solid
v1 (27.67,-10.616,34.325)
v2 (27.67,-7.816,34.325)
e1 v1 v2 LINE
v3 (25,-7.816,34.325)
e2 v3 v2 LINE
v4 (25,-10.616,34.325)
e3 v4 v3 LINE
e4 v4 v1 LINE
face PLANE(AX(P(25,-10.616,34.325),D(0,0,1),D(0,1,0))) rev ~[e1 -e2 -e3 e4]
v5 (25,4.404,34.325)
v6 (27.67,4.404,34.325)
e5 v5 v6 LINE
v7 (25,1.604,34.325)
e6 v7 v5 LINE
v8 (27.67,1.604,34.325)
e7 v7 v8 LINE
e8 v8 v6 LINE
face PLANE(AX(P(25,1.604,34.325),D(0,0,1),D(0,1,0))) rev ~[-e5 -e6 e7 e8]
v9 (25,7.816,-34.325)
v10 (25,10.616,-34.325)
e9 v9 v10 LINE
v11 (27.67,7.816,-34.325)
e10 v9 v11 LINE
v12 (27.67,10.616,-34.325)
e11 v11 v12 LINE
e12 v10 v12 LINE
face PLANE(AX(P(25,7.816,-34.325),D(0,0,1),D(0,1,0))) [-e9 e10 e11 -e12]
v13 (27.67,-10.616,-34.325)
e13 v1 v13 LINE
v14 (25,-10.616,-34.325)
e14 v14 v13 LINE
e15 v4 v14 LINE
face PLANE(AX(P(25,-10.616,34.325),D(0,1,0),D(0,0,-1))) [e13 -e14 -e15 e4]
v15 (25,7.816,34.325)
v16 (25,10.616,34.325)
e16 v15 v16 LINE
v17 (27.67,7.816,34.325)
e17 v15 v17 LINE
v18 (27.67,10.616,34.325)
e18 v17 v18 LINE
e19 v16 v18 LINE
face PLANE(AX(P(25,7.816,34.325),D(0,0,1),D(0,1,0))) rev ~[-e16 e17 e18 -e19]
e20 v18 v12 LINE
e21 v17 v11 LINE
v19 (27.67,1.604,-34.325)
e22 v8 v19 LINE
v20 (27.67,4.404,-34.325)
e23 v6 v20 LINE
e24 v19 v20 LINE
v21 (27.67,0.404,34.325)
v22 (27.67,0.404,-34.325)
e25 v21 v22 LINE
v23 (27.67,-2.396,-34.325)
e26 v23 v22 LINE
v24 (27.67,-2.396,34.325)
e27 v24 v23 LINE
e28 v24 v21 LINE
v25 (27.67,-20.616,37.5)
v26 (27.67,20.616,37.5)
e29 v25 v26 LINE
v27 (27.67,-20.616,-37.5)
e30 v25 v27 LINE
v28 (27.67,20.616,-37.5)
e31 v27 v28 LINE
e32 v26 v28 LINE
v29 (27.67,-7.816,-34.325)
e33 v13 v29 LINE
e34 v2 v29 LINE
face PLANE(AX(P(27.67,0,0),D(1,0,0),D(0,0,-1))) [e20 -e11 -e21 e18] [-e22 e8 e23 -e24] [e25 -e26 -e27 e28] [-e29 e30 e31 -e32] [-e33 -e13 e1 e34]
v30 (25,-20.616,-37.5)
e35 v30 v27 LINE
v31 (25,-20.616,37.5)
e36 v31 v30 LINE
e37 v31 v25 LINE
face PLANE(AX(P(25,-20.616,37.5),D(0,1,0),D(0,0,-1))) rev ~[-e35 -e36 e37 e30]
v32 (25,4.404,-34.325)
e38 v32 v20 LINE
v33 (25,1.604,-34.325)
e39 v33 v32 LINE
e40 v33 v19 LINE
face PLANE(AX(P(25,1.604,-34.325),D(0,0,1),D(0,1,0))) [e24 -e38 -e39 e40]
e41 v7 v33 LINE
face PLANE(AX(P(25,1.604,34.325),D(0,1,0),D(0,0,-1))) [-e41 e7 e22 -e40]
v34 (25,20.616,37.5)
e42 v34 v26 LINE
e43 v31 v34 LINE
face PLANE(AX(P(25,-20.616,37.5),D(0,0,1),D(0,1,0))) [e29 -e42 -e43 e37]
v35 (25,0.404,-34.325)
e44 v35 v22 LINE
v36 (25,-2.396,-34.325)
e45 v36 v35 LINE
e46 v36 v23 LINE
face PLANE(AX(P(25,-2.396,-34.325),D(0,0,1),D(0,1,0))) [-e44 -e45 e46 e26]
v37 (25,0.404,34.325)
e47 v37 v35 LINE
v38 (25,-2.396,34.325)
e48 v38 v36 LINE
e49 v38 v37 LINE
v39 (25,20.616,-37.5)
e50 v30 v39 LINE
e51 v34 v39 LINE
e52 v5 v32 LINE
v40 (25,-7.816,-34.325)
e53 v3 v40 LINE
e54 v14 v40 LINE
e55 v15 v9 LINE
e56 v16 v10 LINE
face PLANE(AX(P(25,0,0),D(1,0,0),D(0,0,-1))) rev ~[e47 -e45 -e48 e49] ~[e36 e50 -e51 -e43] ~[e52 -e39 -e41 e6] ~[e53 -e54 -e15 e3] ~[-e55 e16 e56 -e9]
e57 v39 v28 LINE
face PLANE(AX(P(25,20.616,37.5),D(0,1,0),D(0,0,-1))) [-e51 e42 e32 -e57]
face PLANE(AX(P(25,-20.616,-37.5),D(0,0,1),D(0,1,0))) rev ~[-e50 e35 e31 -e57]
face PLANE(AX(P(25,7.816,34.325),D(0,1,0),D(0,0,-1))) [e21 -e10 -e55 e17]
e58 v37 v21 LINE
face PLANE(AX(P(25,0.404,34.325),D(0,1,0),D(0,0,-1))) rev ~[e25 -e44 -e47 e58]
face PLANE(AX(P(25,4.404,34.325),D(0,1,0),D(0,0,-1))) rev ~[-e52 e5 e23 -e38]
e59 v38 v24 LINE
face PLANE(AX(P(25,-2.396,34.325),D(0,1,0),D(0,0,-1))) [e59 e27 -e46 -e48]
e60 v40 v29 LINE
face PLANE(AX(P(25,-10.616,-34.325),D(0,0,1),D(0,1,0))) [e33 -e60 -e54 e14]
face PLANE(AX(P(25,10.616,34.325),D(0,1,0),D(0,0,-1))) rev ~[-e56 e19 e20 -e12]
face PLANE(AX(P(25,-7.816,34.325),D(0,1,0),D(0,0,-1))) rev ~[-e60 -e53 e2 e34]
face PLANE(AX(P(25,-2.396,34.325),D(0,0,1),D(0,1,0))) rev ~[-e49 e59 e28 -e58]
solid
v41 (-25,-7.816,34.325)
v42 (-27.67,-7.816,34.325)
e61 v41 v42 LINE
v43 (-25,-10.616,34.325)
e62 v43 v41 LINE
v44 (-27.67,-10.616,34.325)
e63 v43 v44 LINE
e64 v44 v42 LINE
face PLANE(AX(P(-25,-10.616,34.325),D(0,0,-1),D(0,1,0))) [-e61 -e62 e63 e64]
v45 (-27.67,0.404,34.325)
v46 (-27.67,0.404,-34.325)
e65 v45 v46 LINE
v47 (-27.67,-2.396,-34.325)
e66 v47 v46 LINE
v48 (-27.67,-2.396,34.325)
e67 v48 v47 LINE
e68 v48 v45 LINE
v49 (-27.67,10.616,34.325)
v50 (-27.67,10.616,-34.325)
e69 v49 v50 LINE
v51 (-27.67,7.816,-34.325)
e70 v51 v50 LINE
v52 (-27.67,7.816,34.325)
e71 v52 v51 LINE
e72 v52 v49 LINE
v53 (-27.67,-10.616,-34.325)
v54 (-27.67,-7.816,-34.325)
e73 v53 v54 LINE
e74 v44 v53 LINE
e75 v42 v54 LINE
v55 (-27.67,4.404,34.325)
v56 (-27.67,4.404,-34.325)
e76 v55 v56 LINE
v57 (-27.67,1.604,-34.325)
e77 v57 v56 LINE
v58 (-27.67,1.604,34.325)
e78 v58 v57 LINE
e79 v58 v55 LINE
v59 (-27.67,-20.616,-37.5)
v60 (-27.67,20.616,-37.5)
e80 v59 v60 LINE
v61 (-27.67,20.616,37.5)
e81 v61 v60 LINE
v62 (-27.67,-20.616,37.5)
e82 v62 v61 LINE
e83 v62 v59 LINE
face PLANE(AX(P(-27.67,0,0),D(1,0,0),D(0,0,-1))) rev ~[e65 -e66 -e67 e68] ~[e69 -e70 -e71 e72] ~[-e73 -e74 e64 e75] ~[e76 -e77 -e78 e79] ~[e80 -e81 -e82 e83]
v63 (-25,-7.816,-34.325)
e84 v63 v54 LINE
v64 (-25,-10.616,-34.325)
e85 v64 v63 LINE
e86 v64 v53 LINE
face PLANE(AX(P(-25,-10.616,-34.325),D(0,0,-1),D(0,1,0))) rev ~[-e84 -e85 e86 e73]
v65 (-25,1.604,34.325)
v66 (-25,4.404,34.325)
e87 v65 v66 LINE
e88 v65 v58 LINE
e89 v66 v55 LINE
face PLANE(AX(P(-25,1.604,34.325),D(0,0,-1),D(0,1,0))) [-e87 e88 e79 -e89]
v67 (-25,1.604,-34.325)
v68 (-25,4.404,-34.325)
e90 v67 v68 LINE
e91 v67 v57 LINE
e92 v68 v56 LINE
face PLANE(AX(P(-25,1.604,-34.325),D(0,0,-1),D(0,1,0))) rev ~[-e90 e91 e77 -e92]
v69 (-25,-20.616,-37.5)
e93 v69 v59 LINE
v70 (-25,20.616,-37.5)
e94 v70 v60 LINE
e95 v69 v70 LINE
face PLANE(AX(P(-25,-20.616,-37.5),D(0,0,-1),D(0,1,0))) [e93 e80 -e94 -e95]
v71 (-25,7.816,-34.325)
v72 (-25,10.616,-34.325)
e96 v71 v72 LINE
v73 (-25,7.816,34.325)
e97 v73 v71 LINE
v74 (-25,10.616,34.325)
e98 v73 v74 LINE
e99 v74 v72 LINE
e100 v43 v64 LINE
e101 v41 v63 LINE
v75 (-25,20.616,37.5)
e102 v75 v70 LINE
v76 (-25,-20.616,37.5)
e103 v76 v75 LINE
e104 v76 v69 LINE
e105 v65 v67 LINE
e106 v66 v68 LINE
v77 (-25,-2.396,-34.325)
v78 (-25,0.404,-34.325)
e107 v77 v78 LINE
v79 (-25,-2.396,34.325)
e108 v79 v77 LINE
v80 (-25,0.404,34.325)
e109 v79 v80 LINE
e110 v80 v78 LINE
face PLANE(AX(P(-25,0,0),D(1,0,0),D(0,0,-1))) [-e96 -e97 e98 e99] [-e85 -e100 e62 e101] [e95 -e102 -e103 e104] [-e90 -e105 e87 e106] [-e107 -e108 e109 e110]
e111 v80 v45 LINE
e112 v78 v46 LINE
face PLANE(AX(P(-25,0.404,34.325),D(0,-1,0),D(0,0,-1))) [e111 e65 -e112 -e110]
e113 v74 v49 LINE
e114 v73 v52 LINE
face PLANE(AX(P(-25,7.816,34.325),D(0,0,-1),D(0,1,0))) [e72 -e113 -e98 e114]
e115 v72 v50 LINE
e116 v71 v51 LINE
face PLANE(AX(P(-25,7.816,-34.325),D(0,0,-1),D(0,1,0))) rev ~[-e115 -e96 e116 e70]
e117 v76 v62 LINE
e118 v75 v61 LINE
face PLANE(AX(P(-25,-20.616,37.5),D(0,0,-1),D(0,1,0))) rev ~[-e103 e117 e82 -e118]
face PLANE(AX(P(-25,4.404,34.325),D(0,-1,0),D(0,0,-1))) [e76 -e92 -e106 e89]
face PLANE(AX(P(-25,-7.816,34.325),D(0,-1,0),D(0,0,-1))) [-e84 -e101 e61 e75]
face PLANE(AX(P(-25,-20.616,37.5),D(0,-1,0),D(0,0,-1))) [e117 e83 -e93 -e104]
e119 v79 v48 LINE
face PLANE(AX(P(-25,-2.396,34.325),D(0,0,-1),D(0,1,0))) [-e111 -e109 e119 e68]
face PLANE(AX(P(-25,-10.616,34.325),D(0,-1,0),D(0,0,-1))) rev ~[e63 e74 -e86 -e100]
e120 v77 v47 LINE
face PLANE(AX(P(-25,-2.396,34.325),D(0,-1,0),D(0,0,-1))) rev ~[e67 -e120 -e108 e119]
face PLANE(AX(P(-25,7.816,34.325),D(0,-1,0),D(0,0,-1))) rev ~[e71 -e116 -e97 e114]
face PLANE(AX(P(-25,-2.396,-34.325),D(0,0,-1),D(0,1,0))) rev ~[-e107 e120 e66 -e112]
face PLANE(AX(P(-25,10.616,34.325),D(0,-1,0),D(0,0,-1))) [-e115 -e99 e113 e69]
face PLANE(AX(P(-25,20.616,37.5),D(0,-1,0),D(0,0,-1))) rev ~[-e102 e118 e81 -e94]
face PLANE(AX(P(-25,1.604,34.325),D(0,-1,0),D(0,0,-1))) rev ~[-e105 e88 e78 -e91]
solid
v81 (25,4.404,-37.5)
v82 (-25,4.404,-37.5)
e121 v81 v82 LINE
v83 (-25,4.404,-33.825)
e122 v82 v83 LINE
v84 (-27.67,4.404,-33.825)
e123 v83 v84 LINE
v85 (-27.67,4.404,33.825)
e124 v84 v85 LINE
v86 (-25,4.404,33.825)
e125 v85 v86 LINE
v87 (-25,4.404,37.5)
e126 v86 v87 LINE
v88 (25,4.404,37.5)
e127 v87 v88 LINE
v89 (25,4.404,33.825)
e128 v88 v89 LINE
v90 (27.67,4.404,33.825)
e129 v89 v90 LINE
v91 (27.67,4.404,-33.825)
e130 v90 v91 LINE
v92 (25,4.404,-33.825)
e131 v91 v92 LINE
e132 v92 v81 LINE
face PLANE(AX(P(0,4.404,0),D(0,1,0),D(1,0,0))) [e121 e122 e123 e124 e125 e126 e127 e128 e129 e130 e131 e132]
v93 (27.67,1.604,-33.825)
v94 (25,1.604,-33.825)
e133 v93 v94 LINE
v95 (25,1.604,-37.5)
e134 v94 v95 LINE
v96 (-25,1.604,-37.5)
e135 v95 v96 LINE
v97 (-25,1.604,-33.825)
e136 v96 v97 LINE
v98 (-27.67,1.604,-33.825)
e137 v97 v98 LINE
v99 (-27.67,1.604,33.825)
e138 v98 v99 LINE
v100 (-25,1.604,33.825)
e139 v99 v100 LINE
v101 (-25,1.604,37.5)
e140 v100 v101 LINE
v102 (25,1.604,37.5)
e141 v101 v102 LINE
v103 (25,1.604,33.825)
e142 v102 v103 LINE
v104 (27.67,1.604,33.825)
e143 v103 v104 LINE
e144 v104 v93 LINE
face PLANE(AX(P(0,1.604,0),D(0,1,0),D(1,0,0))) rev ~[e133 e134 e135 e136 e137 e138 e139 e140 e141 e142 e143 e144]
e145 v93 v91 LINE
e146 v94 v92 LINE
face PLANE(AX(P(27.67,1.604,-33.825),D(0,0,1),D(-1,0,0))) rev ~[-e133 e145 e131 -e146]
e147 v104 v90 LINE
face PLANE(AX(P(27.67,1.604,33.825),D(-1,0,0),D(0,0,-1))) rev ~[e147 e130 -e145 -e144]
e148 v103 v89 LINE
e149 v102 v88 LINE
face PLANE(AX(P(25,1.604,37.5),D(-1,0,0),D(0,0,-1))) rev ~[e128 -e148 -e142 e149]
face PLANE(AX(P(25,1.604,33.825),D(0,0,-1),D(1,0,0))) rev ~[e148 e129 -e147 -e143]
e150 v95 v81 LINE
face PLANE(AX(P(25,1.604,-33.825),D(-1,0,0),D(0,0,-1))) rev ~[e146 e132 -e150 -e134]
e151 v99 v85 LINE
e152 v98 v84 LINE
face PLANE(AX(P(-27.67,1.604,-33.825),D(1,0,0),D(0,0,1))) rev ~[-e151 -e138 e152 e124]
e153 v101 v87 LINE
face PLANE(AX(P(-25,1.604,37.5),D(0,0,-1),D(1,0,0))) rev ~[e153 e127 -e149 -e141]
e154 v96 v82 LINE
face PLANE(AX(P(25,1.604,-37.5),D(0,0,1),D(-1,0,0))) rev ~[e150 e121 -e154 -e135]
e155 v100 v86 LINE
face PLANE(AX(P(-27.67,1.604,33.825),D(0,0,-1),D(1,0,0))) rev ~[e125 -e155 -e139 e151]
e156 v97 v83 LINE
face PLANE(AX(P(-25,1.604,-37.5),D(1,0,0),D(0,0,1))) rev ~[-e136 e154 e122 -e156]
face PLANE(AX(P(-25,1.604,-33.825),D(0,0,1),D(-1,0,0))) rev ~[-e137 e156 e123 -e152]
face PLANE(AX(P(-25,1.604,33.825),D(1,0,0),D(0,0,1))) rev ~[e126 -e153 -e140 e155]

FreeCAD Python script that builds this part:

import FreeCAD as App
import Part
import Sketcher

V = App.Vector


def add_polygon(sketch, points):
    """Adds a closed chain of lines whose ends are joined by coincident constraints."""
    first, n = sketch.GeometryCount, len(points)
    for a, b in zip(points, points[1:] + points[:1]):
        sketch.addGeometry(Part.LineSegment(App.Vector(*a, 0), App.Vector(*b, 0)), False)
    for i in range(n):
        sketch.addConstraint(Sketcher.Constraint("Coincident", first + i, 2, first + (i + 1) % n, 1))

doc = App.newDocument("Part")
body = doc.addObject("PartDesign::Body", "Body")

# Sketch on YZ plane
sketch1 = body.newObject("Sketcher::SketchObject", "Sketch")
sketch1.AttachmentSupport = (doc.getObject("YZ_Plane"), [""])
sketch1.MapMode = "FlatFace"
sketch1.AttachmentOffset = App.Placement(V(0, 0, 25), App.Rotation())
add_polygon(sketch1, [(20.6, 37.5), (-20.6, 37.5), (-20.6, -37.5), (20.6, -37.5)])  # lines 0-3
add_polygon(sketch1, [(-10.6, -34.3), (-10.6, 34.3), (-7.8, 34.3), (-7.8, -34.3)])  # lines 4-7
add_polygon(sketch1, [(-2.4, -34.3), (-2.4, 34.3), (0.4, 34.3), (0.4, -34.3)])  # lines 8-11
add_polygon(sketch1, [(1.6, -34.3), (1.6, 34.3), (4.4, 34.3), (4.4, -34.3)])  # lines 12-15
add_polygon(sketch1, [(7.8, -34.3), (7.8, 34.3), (10.6, 34.3), (10.6, -34.3)])  # lines 16-19
sketch1.addConstraint(Sketcher.Constraint("Horizontal", 0))
sketch1.addConstraint(Sketcher.Constraint("Vertical", 1))
sketch1.addConstraint(Sketcher.Constraint("Horizontal", 2))
sketch1.addConstraint(Sketcher.Constraint("Vertical", 3))
sketch1.addConstraint(Sketcher.Constraint("Vertical", 4))
sketch1.addConstraint(Sketcher.Constraint("Horizontal", 5))
sketch1.addConstraint(Sketcher.Constraint("Vertical", 6))
sketch1.addConstraint(Sketcher.Constraint("Horizontal", 7))
sketch1.addConstraint(Sketcher.Constraint("Vertical", 8))
sketch1.addConstraint(Sketcher.Constraint("Horizontal", 9))
sketch1.addConstraint(Sketcher.Constraint("Vertical", 10))
sketch1.addConstraint(Sketcher.Constraint("Horizontal", 11))
sketch1.addConstraint(Sketcher.Constraint("Vertical", 12))
sketch1.addConstraint(Sketcher.Constraint("Horizontal", 13))
sketch1.addConstraint(Sketcher.Constraint("Vertical", 14))
sketch1.addConstraint(Sketcher.Constraint("Horizontal", 15))
sketch1.addConstraint(Sketcher.Constraint("Vertical", 16))
sketch1.addConstraint(Sketcher.Constraint("Horizontal", 17))
sketch1.addConstraint(Sketcher.Constraint("Vertical", 18))
sketch1.addConstraint(Sketcher.Constraint("Horizontal", 19))
sketch1.addConstraint(Sketcher.Constraint("Symmetric", 0, 2, 2, 2, -1, 1))
sketch1.addConstraint(Sketcher.Constraint("Symmetric", 6, 2, 16, 2, -1, 1))
sketch1.addConstraint(Sketcher.Constraint("Symmetric", 4, 2, 18, 2, -1, 1))
sketch1.addConstraint(Sketcher.Constraint("Horizontal", 5, 2, 8, 2))
sketch1.addConstraint(Sketcher.Constraint("Horizontal", 7, 2, 10, 2))
sketch1.addConstraint(Sketcher.Constraint("Horizontal", 9, 2, 12, 2))
sketch1.addConstraint(Sketcher.Constraint("Horizontal", 11, 2, 14, 2))
sketch1.addConstraint(Sketcher.Constraint("Horizontal", 13, 2, 16, 2))
sketch1.addConstraint(Sketcher.Constraint("Equal", 7, 9))
sketch1.addConstraint(Sketcher.Constraint("Equal", 11, 13))
sketch1.addConstraint(Sketcher.Constraint("DistanceY", 1, 2, 1, 1, 75.0))
sketch1.addConstraint(Sketcher.Constraint("DistanceX", 5, 1, 5, 2, 2.8))
sketch1.addConstraint(Sketcher.Constraint("DistanceX", 0, 2, 4, 2, 10.0))
sketch1.addConstraint(Sketcher.Constraint("DistanceX", 8, 2, 12, 2, 4.0))
sketch1.addConstraint(Sketcher.Constraint("DistanceY", 4, 1, 4, 2, 68.65))
sketch1.addConstraint(Sketcher.Constraint("DistanceX", 0, 2, 0, 1, 41.232))
sketch1.addConstraint(Sketcher.Constraint("DistanceX", 5, 2, 8, 2, 5.42))
pad1 = body.newObject("PartDesign::Pad", "Pad")
pad1.Profile = sketch1
pad1.Length = 2.67
body2 = doc.addObject("PartDesign::Body", "Body001")

# Sketch on YZ plane
sketch2 = body2.newObject("Sketcher::SketchObject", "Sketch001")
sketch2.AttachmentSupport = (doc.getObject("YZ_Plane001"), [""])
sketch2.MapMode = "FlatFace"
sketch2.AttachmentOffset = App.Placement(V(0, 0, -25), App.Rotation())
add_polygon(sketch2, [(20.6, 37.5), (-20.6, 37.5), (-20.6, -37.5), (20.6, -37.5)])  # lines 0-3
add_polygon(sketch2, [(-10.6, -34.3), (-10.6, 34.3), (-7.8, 34.3), (-7.8, -34.3)])  # lines 4-7
add_polygon(sketch2, [(-2.4, -34.3), (-2.4, 34.3), (0.4, 34.3), (0.4, -34.3)])  # lines 8-11
add_polygon(sketch2, [(1.6, -34.3), (1.6, 34.3), (4.4, 34.3), (4.4, -34.3)])  # lines 12-15
add_polygon(sketch2, [(7.8, -34.3), (7.8, 34.3), (10.6, 34.3), (10.6, -34.3)])  # lines 16-19
sketch2.addConstraint(Sketcher.Constraint("Horizontal", 0))
sketch2.addConstraint(Sketcher.Constraint("Vertical", 1))
sketch2.addConstraint(Sketcher.Constraint("Horizontal", 2))
sketch2.addConstraint(Sketcher.Constraint("Vertical", 3))
sketch2.addConstraint(Sketcher.Constraint("Vertical", 4))
sketch2.addConstraint(Sketcher.Constraint("Horizontal", 5))
sketch2.addConstraint(Sketcher.Constraint("Vertical", 6))
sketch2.addConstraint(Sketcher.Constraint("Horizontal", 7))
sketch2.addConstraint(Sketcher.Constraint("Vertical", 8))
sketch2.addConstraint(Sketcher.Constraint("Horizontal", 9))
sketch2.addConstraint(Sketcher.Constraint("Vertical", 10))
sketch2.addConstraint(Sketcher.Constraint("Horizontal", 11))
sketch2.addConstraint(Sketcher.Constraint("Vertical", 12))
sketch2.addConstraint(Sketcher.Constraint("Horizontal", 13))
sketch2.addConstraint(Sketcher.Constraint("Vertical", 14))
sketch2.addConstraint(Sketcher.Constraint("Horizontal", 15))
sketch2.addConstraint(Sketcher.Constraint("Vertical", 16))
sketch2.addConstraint(Sketcher.Constraint("Horizontal", 17))
sketch2.addConstraint(Sketcher.Constraint("Vertical", 18))
sketch2.addConstraint(Sketcher.Constraint("Horizontal", 19))
sketch2.addConstraint(Sketcher.Constraint("Symmetric", 0, 2, 2, 2, -1, 1))
sketch2.addConstraint(Sketcher.Constraint("Symmetric", 6, 2, 16, 2, -1, 1))
sketch2.addConstraint(Sketcher.Constraint("Symmetric", 4, 2, 18, 2, -1, 1))
sketch2.addConstraint(Sketcher.Constraint("Horizontal", 5, 2, 8, 2))
sketch2.addConstraint(Sketcher.Constraint("Horizontal", 7, 2, 10, 2))
sketch2.addConstraint(Sketcher.Constraint("Horizontal", 9, 2, 12, 2))
sketch2.addConstraint(Sketcher.Constraint("Horizontal", 11, 2, 14, 2))
sketch2.addConstraint(Sketcher.Constraint("Horizontal", 13, 2, 16, 2))
sketch2.addConstraint(Sketcher.Constraint("Equal", 7, 9))
sketch2.addConstraint(Sketcher.Constraint("Equal", 11, 13))
sketch2.addConstraint(Sketcher.Constraint("DistanceY", 1, 2, 1, 1, 75.0))
sketch2.addConstraint(Sketcher.Constraint("DistanceX", 5, 1, 5, 2, 2.8))
sketch2.addConstraint(Sketcher.Constraint("DistanceX", 0, 2, 4, 2, 10.0))
sketch2.addConstraint(Sketcher.Constraint("DistanceX", 8, 2, 12, 2, 4.0))
sketch2.addConstraint(Sketcher.Constraint("DistanceY", 4, 1, 4, 2, 68.65))
sketch2.addConstraint(Sketcher.Constraint("DistanceX", 0, 2, 0, 1, 41.232))
sketch2.addConstraint(Sketcher.Constraint("DistanceX", 5, 2, 8, 2, 5.42))
pad2 = body2.newObject("PartDesign::Pad", "Pad001")
pad2.Profile = sketch2
pad2.Length = 2.67
pad2.Reversed = True
body3 = doc.addObject("PartDesign::Body", "Body002")

# Sketch on XZ plane
sketch3 = body3.newObject("Sketcher::SketchObject", "Sketch002")
sketch3.AttachmentSupport = (doc.getObject("XZ_Plane002"), [""])
sketch3.MapMode = "FlatFace"
sketch3.AttachmentOffset = App.Placement(V(0, 0, -1.604), App.Rotation())
add_polygon(sketch3, [(-27.7, -33.8), (-27.7, 33.8), (-25, 33.8), (-25, 37.5), (25, 37.5), (25, 33.8), (27.7, 33.8), (27.7, -33.8), (25, -33.8), (25, -37.5), (-25, -37.5), (-25, -33.8)])  # lines 0-11
sketch3.addConstraint(Sketcher.Constraint("Vertical", 0))
sketch3.addConstraint(Sketcher.Constraint("Horizontal", 1))
sketch3.addConstraint(Sketcher.Constraint("Vertical", 2))
sketch3.addConstraint(Sketcher.Constraint("Horizontal", 3))
sketch3.addConstraint(Sketcher.Constraint("Vertical", 4))
sketch3.addConstraint(Sketcher.Constraint("Horizontal", 5))
sketch3.addConstraint(Sketcher.Constraint("Vertical", 6))
sketch3.addConstraint(Sketcher.Constraint("Horizontal", 7))
sketch3.addConstraint(Sketcher.Constraint("Vertical", 8))
sketch3.addConstraint(Sketcher.Constraint("Horizontal", 9))
sketch3.addConstraint(Sketcher.Constraint("Vertical", 10))
sketch3.addConstraint(Sketcher.Constraint("Horizontal", 11))
sketch3.addConstraint(Sketcher.Constraint("Symmetric", 0, 2, 6, 2, -1, 1))
sketch3.addConstraint(Sketcher.Constraint("Symmetric", 2, 2, 8, 2, -1, 1))
sketch3.addConstraint(Sketcher.Constraint("Symmetric", 4, 2, 10, 2, -1, 1))
sketch3.addConstraint(Sketcher.Constraint("Symmetric", 1, 2, 4, 2, -2))
sketch3.addConstraint(Sketcher.Constraint("DistanceX", 3, 1, 3, 2, 50.0))
sketch3.addConstraint(Sketcher.Constraint("DistanceY", 8, 2, 3, 2, 75.0))
sketch3.addConstraint(Sketcher.Constraint("DistanceX", 1, 1, 1, 2, 2.67))
sketch3.addConstraint(Sketcher.Constraint("DistanceY", 0, 1, 0, 2, 67.65))
pad3 = body3.newObject("PartDesign::Pad", "Pad002")
pad3.Profile = sketch3
pad3.Length = 2.8
pad3.Reversed = True

doc.recompute()
